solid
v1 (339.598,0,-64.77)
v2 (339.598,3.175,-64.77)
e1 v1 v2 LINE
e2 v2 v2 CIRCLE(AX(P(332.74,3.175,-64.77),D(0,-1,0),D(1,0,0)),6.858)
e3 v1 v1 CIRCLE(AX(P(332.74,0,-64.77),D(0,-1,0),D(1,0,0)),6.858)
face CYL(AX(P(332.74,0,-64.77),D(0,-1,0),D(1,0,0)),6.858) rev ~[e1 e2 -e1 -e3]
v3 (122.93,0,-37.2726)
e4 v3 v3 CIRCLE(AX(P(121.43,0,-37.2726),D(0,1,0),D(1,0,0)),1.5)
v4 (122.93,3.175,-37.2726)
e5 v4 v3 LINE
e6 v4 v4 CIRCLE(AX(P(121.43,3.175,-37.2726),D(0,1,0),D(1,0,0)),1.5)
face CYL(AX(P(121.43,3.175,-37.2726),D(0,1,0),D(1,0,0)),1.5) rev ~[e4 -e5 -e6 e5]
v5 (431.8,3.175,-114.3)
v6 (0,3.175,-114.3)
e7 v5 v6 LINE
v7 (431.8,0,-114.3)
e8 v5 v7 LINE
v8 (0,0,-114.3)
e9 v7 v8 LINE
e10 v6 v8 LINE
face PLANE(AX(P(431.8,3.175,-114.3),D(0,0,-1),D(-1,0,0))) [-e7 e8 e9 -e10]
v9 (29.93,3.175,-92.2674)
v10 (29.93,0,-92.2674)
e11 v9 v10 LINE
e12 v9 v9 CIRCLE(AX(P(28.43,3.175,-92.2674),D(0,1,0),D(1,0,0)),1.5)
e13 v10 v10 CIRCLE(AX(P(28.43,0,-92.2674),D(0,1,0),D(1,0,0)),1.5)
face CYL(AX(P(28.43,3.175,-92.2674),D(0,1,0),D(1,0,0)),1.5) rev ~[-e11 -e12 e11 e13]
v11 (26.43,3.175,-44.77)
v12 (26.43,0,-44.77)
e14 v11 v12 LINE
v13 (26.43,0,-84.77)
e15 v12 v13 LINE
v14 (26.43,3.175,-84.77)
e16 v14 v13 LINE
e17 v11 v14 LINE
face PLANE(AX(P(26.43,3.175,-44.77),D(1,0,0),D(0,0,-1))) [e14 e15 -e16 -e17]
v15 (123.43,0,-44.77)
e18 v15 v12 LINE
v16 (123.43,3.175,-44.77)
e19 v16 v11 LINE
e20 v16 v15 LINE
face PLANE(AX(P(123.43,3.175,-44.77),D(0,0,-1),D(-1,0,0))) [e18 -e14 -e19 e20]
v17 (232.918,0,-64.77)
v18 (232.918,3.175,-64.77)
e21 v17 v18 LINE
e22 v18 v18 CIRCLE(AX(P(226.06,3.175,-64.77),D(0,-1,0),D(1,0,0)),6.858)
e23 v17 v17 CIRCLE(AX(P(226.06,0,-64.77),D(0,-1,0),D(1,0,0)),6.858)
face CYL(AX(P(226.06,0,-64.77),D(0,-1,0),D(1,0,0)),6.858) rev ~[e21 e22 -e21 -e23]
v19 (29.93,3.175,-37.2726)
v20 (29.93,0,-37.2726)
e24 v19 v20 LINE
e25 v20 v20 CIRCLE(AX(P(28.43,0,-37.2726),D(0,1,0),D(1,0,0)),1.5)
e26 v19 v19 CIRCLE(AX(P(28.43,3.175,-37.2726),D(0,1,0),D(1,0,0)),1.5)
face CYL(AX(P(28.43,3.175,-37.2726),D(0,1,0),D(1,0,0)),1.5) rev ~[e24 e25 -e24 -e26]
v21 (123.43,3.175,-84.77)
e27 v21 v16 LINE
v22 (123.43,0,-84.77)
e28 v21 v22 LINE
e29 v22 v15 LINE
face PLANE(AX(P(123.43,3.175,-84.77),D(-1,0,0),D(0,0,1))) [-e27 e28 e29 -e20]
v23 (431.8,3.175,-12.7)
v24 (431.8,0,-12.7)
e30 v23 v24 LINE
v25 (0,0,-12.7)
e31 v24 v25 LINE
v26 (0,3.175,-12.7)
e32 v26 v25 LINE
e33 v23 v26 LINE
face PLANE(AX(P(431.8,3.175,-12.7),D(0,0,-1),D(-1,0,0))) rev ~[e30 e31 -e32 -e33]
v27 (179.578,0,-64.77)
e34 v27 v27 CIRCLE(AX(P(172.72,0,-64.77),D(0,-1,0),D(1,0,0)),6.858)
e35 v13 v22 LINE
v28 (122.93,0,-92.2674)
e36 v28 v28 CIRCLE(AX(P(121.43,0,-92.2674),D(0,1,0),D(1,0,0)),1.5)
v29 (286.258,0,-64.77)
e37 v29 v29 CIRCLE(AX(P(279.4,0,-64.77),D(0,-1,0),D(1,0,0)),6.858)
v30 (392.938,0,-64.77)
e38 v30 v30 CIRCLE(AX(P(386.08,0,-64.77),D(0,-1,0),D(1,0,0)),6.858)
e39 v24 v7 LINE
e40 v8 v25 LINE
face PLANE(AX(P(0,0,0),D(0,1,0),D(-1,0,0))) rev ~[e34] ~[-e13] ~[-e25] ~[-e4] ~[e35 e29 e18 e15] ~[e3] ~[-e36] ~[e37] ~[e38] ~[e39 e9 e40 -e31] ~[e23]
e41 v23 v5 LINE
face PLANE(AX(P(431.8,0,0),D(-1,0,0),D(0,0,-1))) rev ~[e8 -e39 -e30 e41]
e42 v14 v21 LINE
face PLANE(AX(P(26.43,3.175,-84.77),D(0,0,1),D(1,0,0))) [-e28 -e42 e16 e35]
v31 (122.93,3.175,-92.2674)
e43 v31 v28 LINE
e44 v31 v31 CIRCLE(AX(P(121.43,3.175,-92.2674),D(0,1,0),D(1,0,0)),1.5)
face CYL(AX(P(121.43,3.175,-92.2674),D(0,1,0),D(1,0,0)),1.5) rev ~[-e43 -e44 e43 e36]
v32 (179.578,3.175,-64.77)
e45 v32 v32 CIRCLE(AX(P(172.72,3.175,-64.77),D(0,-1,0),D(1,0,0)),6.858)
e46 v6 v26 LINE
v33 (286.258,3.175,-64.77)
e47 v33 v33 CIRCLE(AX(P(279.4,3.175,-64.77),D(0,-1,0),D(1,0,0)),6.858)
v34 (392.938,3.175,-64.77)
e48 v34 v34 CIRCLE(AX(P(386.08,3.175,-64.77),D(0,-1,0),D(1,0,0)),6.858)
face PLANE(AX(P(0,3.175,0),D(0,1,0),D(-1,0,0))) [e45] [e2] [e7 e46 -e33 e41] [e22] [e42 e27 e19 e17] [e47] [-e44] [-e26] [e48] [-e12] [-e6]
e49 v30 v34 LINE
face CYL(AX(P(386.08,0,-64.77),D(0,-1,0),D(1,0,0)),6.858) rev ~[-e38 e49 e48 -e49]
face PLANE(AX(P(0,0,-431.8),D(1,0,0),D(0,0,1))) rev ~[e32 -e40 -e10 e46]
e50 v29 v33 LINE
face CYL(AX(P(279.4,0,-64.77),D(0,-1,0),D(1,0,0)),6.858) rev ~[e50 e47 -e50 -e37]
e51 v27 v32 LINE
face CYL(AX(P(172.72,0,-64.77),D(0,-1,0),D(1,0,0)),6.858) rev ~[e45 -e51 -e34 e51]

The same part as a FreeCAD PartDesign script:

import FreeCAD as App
import Part
import Sketcher

V = App.Vector
Q = App.Units.Quantity


def add_polygon(sketch, points):
    """Adds a closed chain of lines whose ends are joined by coincident constraints."""
    first, n = sketch.GeometryCount, len(points)
    for a, b in zip(points, points[1:] + points[:1]):
        sketch.addGeometry(Part.LineSegment(App.Vector(*a, 0), App.Vector(*b, 0)), False)
    for i in range(n):
        sketch.addConstraint(Sketcher.Constraint("Coincident", first + i, 2, first + (i + 1) % n, 1))

doc = App.newDocument("Part")
params = doc.addObject("Spreadsheet::Sheet", "Params")
for row, (alias, value) in enumerate([
    ("sketch1_width", "17 in"),
    ("pad1_length", "0.125 in"),
    ("sketch2_diameter", "0.5 in"),
    ("pocket1_length", "1 in"),
    ("sketch3_diameter", "0.2 in"),
    ("sketch4_diameter", "0.54 in"),
    ("pocket3_length", "0.1712992 in"),
    ("sketch5_height", "12.5 in"),
    ("sketch5_width", "17 in"),
    ("sketch5_height2", "0.5 in"),
    ("pocket4_length", "1 in"),
], start=1):
    params.set(f"A{row}", alias)
    params.set(f"B{row}", "=" + value)
    params.setAlias(f"B{row}", alias)

body = doc.addObject("PartDesign::Body", "Body")

sketch1 = doc.addObject("Sketcher::SketchObject", "Sketch")
body.addObject(sketch1)
sketch1.AttachmentSupport = (doc.XZ_Plane, [""])
sketch1.MapMode = "FlatFace"
add_polygon(sketch1, [(0, -431.8), (0, 0), (431.8, 0), (431.8, -431.8)])
sketch1.addConstraint([
    Sketcher.Constraint("Vertical", 0),
    Sketcher.Constraint("Horizontal", 1),
    Sketcher.Constraint("Vertical", 2),
    Sketcher.Constraint("Horizontal", 3),
    Sketcher.Constraint("Coincident", 0, 2, -1, 1),
    Sketcher.Constraint("Equal", 3, 0),
    Sketcher.Constraint("DistanceX", 1, 1, 1, 2, Q("17 in")),
])
sketch1.setExpression("Constraints[10]", "Params.sketch1_width")
pad1 = doc.addObject("PartDesign::Pad", "Pad")
body.addObject(pad1)
pad1.Profile = sketch1
pad1.setExpression("Length", "Params.pad1_length")
pad1.Reversed = True

sketch2 = doc.addObject("Sketcher::SketchObject", "Sketch001")
body.addObject(sketch2)
sketch2.AttachmentSupport = (doc.XZ_Plane, [""])
sketch2.MapMode = "FlatFace"
sketch2.AttachmentOffset = App.Placement(V(0, 0, -0.125 * 25.4), App.Rotation())
sketch2.addGeometry(Part.Circle(V(386.08, -64.77, 0), V(0, 0, 1), 6.35), False)
sketch2.addGeometry(Part.Circle(V(332.74, -64.77, 0), V(0, 0, 1), 6.35), False)
sketch2.addGeometry(Part.Circle(V(279.4, -64.77, 0), V(0, 0, 1), 6.35), False)
sketch2.addGeometry(Part.Circle(V(226.06, -64.77, 0), V(0, 0, 1), 6.35), False)
sketch2.addGeometry(Part.Circle(V(172.72, -64.77, 0), V(0, 0, 1), 6.35), False)
sketch2.addGeometry(Part.Circle(V(28.43, -92.2674, 0), V(0, 0, 1), 1.5), False)
sketch2.addGeometry(Part.Circle(V(121.43, -92.2674, 0), V(0, 0, 1), 1.5), False)
sketch2.addGeometry(Part.Circle(V(28.43, -37.2726, 0), V(0, 0, 1), 1.5), False)
sketch2.addGeometry(Part.Circle(V(121.43, -37.2726, 0), V(0, 0, 1), 1.5), False)
add_polygon(sketch2, [(123.43, -84.77), (26.43, -84.77), (26.43, -44.77), (123.43, -44.77)])
sketch2.addConstraint([
    Sketcher.Constraint("Horizontal", 9),
    Sketcher.Constraint("Vertical", 10),
    Sketcher.Constraint("Horizontal", 11),
    Sketcher.Constraint("Vertical", 12),
    Sketcher.Constraint("Equal", 0, 1),
    Sketcher.Constraint("Equal", 1, 2),
    Sketcher.Constraint("Equal", 2, 3),
    Sketcher.Constraint("Equal", 3, 4),
    Sketcher.Constraint("Equal", 5, 6),
    Sketcher.Constraint("Equal", 6, 7),
    Sketcher.Constraint("Equal", 7, 8),
    Sketcher.Constraint("Horizontal", 0, 3, 1, 3),
    Sketcher.Constraint("Horizontal", 1, 3, 2, 3),
    Sketcher.Constraint("Horizontal", 2, 3, 3, 3),
    Sketcher.Constraint("Horizontal", 3, 3, 4, 3),
    Sketcher.Constraint("Horizontal", 5, 3, 6, 3),
    Sketcher.Constraint("Horizontal", 7, 3, 8, 3),
    Sketcher.Constraint("Vertical", 5, 3, 7, 3),
    Sketcher.Constraint("Vertical", 6, 3, 8, 3),
    Sketcher.Constraint("Diameter", 0, Q("0.5 in")),
    Sketcher.Constraint("DistanceX", -1, 1, 2, 3, Q("11 in")),
    Sketcher.Constraint("Diameter", 5, Q("0.1181 in")),
    Sketcher.Constraint("DistanceX", -1, 1, 0, 3, Q("15.2 in")),
    Sketcher.Constraint("DistanceX", -1, 1, 1, 3, Q("13.1 in")),
    Sketcher.Constraint("DistanceX", -1, 1, 3, 3, Q("8.9 in")),
    Sketcher.Constraint("DistanceX", -1, 1, 4, 3, Q("6.8 in")),
    Sketcher.Constraint("DistanceY", 0, 3, -1, 1, Q("2.55 in")),
    Sketcher.Constraint("DistanceX", 9, 2, 9, 1, Q("3.8189 in")),
    Sketcher.Constraint("DistanceY", 10, 1, 10, 2, Q("1.5748 in")),
    Sketcher.Constraint("DistanceX", -1, 1, 5, 3, Q("1.1193 in")),
    Sketcher.Constraint("DistanceX", -1, 1, 6, 3, Q("4.7807 in")),
    Sketcher.Constraint("DistanceY", 9, 2, -1, 1, Q("3.3374 in")),
    Sketcher.Constraint("DistanceY", 5, 3, -1, 1, Q("92.2674 mm")),
    Sketcher.Constraint("DistanceY", 7, 3, -1, 1, Q("37.2726 mm")),
    Sketcher.Constraint("DistanceX", -1, 1, 9, 2, Q("26.43 mm")),
])
sketch2.setExpression("Constraints[23]", "Params.sketch2_diameter")
pocket1 = doc.addObject("PartDesign::Pocket", "Pocket")
body.addObject(pocket1)
pocket1.Profile = sketch2
pocket1.setExpression("Length", "Params.pocket1_length")
pocket1.Reversed = True

sketch3 = doc.addObject("Sketcher::SketchObject", "Sketch002")
body.addObject(sketch3)
sketch3.AttachmentSupport = (doc.XZ_Plane, [""])
sketch3.MapMode = "FlatFace"
sketch3.AttachmentOffset = App.Placement(V(0, 0, -0.125 * 25.4), App.Rotation())
sketch3.addGeometry([
    Part.Circle(V(88.9, -424.18, 0), V(0, 0, 1), 2.54),
    Part.Circle(V(115.316, -424.18, 0), V(0, 0, 1), 2.54),
    Part.Circle(V(316.484, -424.18, 0), V(0, 0, 1), 2.54),
    Part.Circle(V(342.9, -424.18, 0), V(0, 0, 1), 2.54),
], False)
sketch3.addConstraint([
    Sketcher.Constraint("Equal", 0, 1),
    Sketcher.Constraint("Equal", 1, 2),
    Sketcher.Constraint("Equal", 2, 3),
    Sketcher.Constraint("Horizontal", 0, 3, 1, 3),
    Sketcher.Constraint("Horizontal", 1, 3, 2, 3),
    Sketcher.Constraint("Horizontal", 2, 3, 3, 3),
    Sketcher.Constraint("Diameter", 0, Q("0.2 in")),
    Sketcher.Constraint("DistanceX", 0, 3, 3, 3, Q("10 in")),
    Sketcher.Constraint("DistanceX", -1, 1, 0, 3, Q("3.5 in")),
    Sketcher.Constraint("DistanceY", 0, 3, -1, 1, Q("16.7 in")),
    Sketcher.Constraint("DistanceX", -1, 1, 1, 3, Q("4.54 in")),
    Sketcher.Constraint("DistanceX", -1, 1, 2, 3, Q("12.46 in")),
])
sketch3.setExpression("Constraints[6]", "Params.sketch3_diameter")
pocket2 = doc.addObject("PartDesign::Pocket", "Pocket001")
body.addObject(pocket2)
pocket2.Profile = sketch3
pocket2.Type = "ThroughAll"
pocket2.Midplane = True

sketch4 = doc.addObject("Sketcher::SketchObject", "Sketch003")
body.addObject(sketch4)
sketch4.AttachmentSupport = (doc.XZ_Plane, [""])
sketch4.MapMode = "FlatFace"
sketch4.addGeometry([
    Part.Circle(V(386.08, -64.77, 0), V(0, 0, 1), 6.858),
    Part.Circle(V(172.72, -64.77, 0), V(0, 0, 1), 6.858),
    Part.Circle(V(226.06, -64.77, 0), V(0, 0, 1), 6.858),
    Part.Circle(V(279.4, -64.77, 0), V(0, 0, 1), 6.858),
    Part.Circle(V(332.74, -64.77, 0), V(0, 0, 1), 6.858),
], False)
sketch4.addConstraint([
    Sketcher.Constraint("Equal", 0, 1),
    Sketcher.Constraint("Equal", 1, 2),
    Sketcher.Constraint("Equal", 2, 3),
    Sketcher.Constraint("Equal", 3, 4),
    Sketcher.Constraint("Horizontal", 0, 3, 1, 3),
    Sketcher.Constraint("Horizontal", 1, 3, 2, 3),
    Sketcher.Constraint("Horizontal", 2, 3, 3, 3),
    Sketcher.Constraint("Horizontal", 3, 3, 4, 3),
    Sketcher.Constraint("Diameter", 0, Q("0.54 in")),
    Sketcher.Constraint("DistanceX", -1, 1, 3, 3, Q("11 in")),
    Sketcher.Constraint("DistanceX", -1, 1, 0, 3, Q("15.2 in")),
    Sketcher.Constraint("DistanceX", -1, 1, 1, 3, Q("6.8 in")),
    Sketcher.Constraint("DistanceX", -1, 1, 2, 3, Q("8.9 in")),
    Sketcher.Constraint("DistanceX", -1, 1, 4, 3, Q("13.1 in")),
    Sketcher.Constraint("DistanceY", 0, 3, -1, 1, Q("2.55 in")),
])
sketch4.setExpression("Constraints[8]", "Params.sketch4_diameter")
pocket3 = doc.addObject("PartDesign::Pocket", "Pocket002")
body.addObject(pocket3)
pocket3.Profile = sketch4
pocket3.setExpression("Length", "Params.pocket3_length")

sketch5 = doc.addObject("Sketcher::SketchObject", "Sketch004")
body.addObject(sketch5)
sketch5.AttachmentSupport = (doc.XZ_Plane, [""])
sketch5.MapMode = "FlatFace"
sketch5.AttachmentOffset = App.Placement(V(0, 0, -0.125 * 25.4), App.Rotation())
add_polygon(sketch5, [(0, 0), (431.8, 0), (431.8, -12.7), (0, -12.7)])
add_polygon(sketch5, [(0, -114.3), (431.8, -114.3), (431.8, -431.8), (0, -431.8)])
sketch5.addConstraint([
    Sketcher.Constraint("Horizontal", 0),
    Sketcher.Constraint("Vertical", 1),
    Sketcher.Constraint("Horizontal", 2),
    Sketcher.Constraint("Vertical", 3),
    Sketcher.Constraint("Horizontal", 4),
    Sketcher.Constraint("Vertical", 5),
    Sketcher.Constraint("Horizontal", 6),
    Sketcher.Constraint("Vertical", 7),
    Sketcher.Constraint("Coincident", 3, 2, -1, 1),
    Sketcher.Constraint("PointOnObject", 6, 2, -2),
    Sketcher.Constraint("Vertical", 1, 2, 4, 2),
    Sketcher.Constraint("DistanceY", 5, 2, 5, 1, Q("12.5 in")),
    Sketcher.Constraint("DistanceY", 4, 2, 1, 2, Q("4 in")),
    Sketcher.Constraint("DistanceX", 0, 1, 0, 2, Q("17 in")),
    Sketcher.Constraint("DistanceY", 1, 2, 1, 1, Q("0.5 in")),
])
sketch5.setExpression("Constraints[19]", "Params.sketch5_height")
sketch5.setExpression("Constraints[21]", "Params.sketch5_width")
sketch5.setExpression("Constraints[22]", "Params.sketch5_height2")
pocket4 = doc.addObject("PartDesign::Pocket", "Pocket003")
body.addObject(pocket4)
pocket4.Profile = sketch5
pocket4.setExpression("Length", "Params.pocket4_length")
pocket4.Reversed = True

doc.recompute()
